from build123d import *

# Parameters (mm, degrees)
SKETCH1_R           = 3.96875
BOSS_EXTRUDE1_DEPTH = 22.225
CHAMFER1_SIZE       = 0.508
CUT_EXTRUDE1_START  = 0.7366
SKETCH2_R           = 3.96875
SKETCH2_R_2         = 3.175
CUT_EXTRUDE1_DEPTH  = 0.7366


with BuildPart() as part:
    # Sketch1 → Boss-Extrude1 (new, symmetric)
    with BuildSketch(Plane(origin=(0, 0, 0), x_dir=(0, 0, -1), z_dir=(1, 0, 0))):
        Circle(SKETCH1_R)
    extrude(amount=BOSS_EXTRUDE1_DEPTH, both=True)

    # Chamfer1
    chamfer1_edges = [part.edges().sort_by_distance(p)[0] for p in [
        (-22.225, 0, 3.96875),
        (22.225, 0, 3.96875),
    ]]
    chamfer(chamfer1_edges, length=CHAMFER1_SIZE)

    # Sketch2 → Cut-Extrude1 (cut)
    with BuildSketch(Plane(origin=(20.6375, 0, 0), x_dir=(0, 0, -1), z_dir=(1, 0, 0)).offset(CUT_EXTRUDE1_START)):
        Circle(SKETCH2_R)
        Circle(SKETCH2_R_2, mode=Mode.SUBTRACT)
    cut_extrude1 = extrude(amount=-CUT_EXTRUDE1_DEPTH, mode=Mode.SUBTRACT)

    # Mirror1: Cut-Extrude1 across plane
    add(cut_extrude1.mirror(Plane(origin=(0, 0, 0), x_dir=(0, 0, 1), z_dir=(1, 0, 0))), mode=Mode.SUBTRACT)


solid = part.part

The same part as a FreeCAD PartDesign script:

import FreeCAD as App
import Part
import Sketcher
Q = App.Units.Quantity


def edges_at(feature, points):
    """Names of the edges that pass closest to the given points."""
    edges = feature.Shape.Edges
    near = lambda p: min(range(len(edges)), key=lambda i: edges[i].distToShape(Part.Vertex(*p))[0])
    return sorted({f"Edge{near(p) + 1}" for p in points})

doc = App.newDocument("Part")
body = doc.addObject("PartDesign::Body", "Body")

sketch1 = body.newObject("Sketcher::SketchObject", "Sketch")
sketch1.AttachmentSupport = (doc.getObject("YZ_Plane"), [""])
sketch1.MapMode = "FlatFace"
sketch1.addGeometry(Part.Circle(App.Vector(0, 0, 0), App.Vector(0, 0, 1), 4), False)
sketch1.addConstraint(Sketcher.Constraint("Coincident", 0, 3, -1, 1))
sketch1.addConstraint(Sketcher.Constraint("Diameter", 0, Q("0.3125 in")))
pad1 = body.newObject("PartDesign::Pad", "Pad")
pad1.Profile = sketch1
pad1.Length = Q("1.75 in")
pad1.Midplane = True
doc.recompute()

chamfer = body.newObject("PartDesign::Chamfer", "Chamfer")
chamfer.Base = (pad1, edges_at(pad1, [(-22.225, 0, 3.969), (22.225, 0, 3.969)]))
chamfer.Size = Q("0.02 in")

sketch2 = body.newObject("Sketcher::SketchObject", "Sketch001")
sketch2.AttachmentSupport = (doc.getObject("YZ_Plane"), [""])
sketch2.MapMode = "FlatFace"
sketch2.AttachmentOffset = App.Placement(App.Vector(0, 0, 0.8415 * 25.4), App.Rotation())
sketch2.addGeometry(Part.Circle(App.Vector(0, 0, 0), App.Vector(0, 0, 1), 4), False)
sketch2.addGeometry(Part.Circle(App.Vector(0, 0, 0), App.Vector(0, 0, 1), 3.2), False)
sketch2.addConstraint(Sketcher.Constraint("Coincident", 0, 3, -1, 1))
sketch2.addConstraint(Sketcher.Constraint("Coincident", 1, 3, -1, 1))
sketch2.addConstraint(Sketcher.Constraint("Diameter", 1, Q("0.25 in")))
sketch2.addConstraint(Sketcher.Constraint("Diameter", 0, Q("0.3125 in")))
pocket1 = body.newObject("PartDesign::Pocket", "Pocket")
pocket1.Profile = sketch2
pocket1.Length = Q("0.029 in")
doc.recompute()

mirrored = body.newObject("PartDesign::Mirrored", "Mirrored")
mirrored.Originals = [pocket1]
mirrored.MirrorPlane = (doc.getObject("YZ_Plane"), [""])
body.Tip = mirrored

doc.recompute()
